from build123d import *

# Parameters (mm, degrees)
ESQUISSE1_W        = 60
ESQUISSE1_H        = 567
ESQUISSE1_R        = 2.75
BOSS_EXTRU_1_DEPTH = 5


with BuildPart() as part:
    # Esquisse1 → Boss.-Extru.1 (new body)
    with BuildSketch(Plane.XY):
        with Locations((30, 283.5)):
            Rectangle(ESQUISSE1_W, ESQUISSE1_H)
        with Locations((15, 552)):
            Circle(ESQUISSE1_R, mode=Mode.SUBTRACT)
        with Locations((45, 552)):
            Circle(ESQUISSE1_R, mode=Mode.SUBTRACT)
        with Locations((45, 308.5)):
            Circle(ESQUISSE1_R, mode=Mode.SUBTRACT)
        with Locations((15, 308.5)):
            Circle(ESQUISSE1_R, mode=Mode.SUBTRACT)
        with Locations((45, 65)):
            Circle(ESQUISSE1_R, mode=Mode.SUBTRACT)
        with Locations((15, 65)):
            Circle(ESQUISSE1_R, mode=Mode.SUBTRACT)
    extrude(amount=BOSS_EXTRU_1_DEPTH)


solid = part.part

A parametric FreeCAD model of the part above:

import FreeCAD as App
import Part
import Sketcher
from FreeCAD import Vector


def add_polygon(sketch, points):
    """Adds a closed chain of lines whose ends are joined by coincident constraints."""
    first, n = sketch.GeometryCount, len(points)
    for a, b in zip(points, points[1:] + points[:1]):
        sketch.addGeometry(Part.LineSegment(App.Vector(*a, 0), App.Vector(*b, 0)), False)
    for i in range(n):
        sketch.addConstraint(Sketcher.Constraint("Coincident", first + i, 2, first + (i + 1) % n, 1))

doc = App.newDocument("Part")
body = doc.addObject("PartDesign::Body", "Body")

# Sketch on XY plane
sketch1 = doc.addObject("Sketcher::SketchObject", "Sketch")
body.addObject(sketch1)
sketch1.AttachmentSupport = (doc.XY_Plane, [""])
sketch1.MapMode = "FlatFace"
add_polygon(sketch1, [(0, 567), (0, 0), (60, 0), (60, 567)])  # lines 0-3
sketch1.addGeometry(Part.Circle(Vector(15, 65, 0), Vector(0, 0, 1), 2.8), False)  # 4
sketch1.addGeometry(Part.Circle(Vector(45, 65, 0), Vector(0, 0, 1), 2.8), False)  # 5
sketch1.addGeometry(Part.Circle(Vector(15, 308.5, 0), Vector(0, 0, 1), 2.8), False)  # 6
sketch1.addGeometry(Part.Circle(Vector(15, 552, 0), Vector(0, 0, 1), 2.8), False)  # 7
sketch1.addGeometry(Part.Circle(Vector(45, 308.5, 0), Vector(0, 0, 1), 2.8), False)  # 8
sketch1.addGeometry(Part.Circle(Vector(45, 552, 0), Vector(0, 0, 1), 2.8), False)  # 9
sketch1.addConstraint(Sketcher.Constraint("Vertical", 0))
sketch1.addConstraint(Sketcher.Constraint("Horizontal", 1))
sketch1.addConstraint(Sketcher.Constraint("Vertical", 2))
sketch1.addConstraint(Sketcher.Constraint("Horizontal", 3))
sketch1.addConstraint(Sketcher.Constraint("Coincident", 0, 2, -1, 1))
sketch1.addConstraint(Sketcher.Constraint("Equal", 4, 5))
sketch1.addConstraint(Sketcher.Constraint("Equal", 5, 6))
sketch1.addConstraint(Sketcher.Constraint("Equal", 6, 7))
sketch1.addConstraint(Sketcher.Constraint("Equal", 7, 8))
sketch1.addConstraint(Sketcher.Constraint("Equal", 8, 9))
sketch1.addConstraint(Sketcher.Constraint("Horizontal", 4, 3, 5, 3))
sketch1.addConstraint(Sketcher.Constraint("Horizontal", 6, 3, 8, 3))
sketch1.addConstraint(Sketcher.Constraint("Horizontal", 7, 3, 9, 3))
sketch1.addConstraint(Sketcher.Constraint("Vertical", 4, 3, 6, 3))
sketch1.addConstraint(Sketcher.Constraint("Vertical", 6, 3, 7, 3))
sketch1.addConstraint(Sketcher.Constraint("Vertical", 5, 3, 8, 3))
sketch1.addConstraint(Sketcher.Constraint("Vertical", 8, 3, 9, 3))
sketch1.addConstraint(Sketcher.Constraint("Diameter", 4, 5.5))
sketch1.addConstraint(Sketcher.Constraint("DistanceX", 1, 1, 1, 2, 60.0))
sketch1.addConstraint(Sketcher.Constraint("DistanceY", 0, 2, 0, 1, 567.0))
sketch1.addConstraint(Sketcher.Constraint("DistanceX", -1, 1, 4, 3, 15.0))
sketch1.addConstraint(Sketcher.Constraint("DistanceY", -1, 1, 4, 3, 65.0))
sketch1.addConstraint(Sketcher.Constraint("DistanceX", -1, 1, 5, 3, 45.0))
sketch1.addConstraint(Sketcher.Constraint("DistanceY", -1, 1, 7, 3, 552.0))
sketch1.addConstraint(Sketcher.Constraint("DistanceY", -1, 1, 6, 3, 308.5))
pad1 = doc.addObject("PartDesign::Pad", "Pad")
body.addObject(pad1)
pad1.Profile = sketch1
pad1.Length = 5

doc.recompute()
